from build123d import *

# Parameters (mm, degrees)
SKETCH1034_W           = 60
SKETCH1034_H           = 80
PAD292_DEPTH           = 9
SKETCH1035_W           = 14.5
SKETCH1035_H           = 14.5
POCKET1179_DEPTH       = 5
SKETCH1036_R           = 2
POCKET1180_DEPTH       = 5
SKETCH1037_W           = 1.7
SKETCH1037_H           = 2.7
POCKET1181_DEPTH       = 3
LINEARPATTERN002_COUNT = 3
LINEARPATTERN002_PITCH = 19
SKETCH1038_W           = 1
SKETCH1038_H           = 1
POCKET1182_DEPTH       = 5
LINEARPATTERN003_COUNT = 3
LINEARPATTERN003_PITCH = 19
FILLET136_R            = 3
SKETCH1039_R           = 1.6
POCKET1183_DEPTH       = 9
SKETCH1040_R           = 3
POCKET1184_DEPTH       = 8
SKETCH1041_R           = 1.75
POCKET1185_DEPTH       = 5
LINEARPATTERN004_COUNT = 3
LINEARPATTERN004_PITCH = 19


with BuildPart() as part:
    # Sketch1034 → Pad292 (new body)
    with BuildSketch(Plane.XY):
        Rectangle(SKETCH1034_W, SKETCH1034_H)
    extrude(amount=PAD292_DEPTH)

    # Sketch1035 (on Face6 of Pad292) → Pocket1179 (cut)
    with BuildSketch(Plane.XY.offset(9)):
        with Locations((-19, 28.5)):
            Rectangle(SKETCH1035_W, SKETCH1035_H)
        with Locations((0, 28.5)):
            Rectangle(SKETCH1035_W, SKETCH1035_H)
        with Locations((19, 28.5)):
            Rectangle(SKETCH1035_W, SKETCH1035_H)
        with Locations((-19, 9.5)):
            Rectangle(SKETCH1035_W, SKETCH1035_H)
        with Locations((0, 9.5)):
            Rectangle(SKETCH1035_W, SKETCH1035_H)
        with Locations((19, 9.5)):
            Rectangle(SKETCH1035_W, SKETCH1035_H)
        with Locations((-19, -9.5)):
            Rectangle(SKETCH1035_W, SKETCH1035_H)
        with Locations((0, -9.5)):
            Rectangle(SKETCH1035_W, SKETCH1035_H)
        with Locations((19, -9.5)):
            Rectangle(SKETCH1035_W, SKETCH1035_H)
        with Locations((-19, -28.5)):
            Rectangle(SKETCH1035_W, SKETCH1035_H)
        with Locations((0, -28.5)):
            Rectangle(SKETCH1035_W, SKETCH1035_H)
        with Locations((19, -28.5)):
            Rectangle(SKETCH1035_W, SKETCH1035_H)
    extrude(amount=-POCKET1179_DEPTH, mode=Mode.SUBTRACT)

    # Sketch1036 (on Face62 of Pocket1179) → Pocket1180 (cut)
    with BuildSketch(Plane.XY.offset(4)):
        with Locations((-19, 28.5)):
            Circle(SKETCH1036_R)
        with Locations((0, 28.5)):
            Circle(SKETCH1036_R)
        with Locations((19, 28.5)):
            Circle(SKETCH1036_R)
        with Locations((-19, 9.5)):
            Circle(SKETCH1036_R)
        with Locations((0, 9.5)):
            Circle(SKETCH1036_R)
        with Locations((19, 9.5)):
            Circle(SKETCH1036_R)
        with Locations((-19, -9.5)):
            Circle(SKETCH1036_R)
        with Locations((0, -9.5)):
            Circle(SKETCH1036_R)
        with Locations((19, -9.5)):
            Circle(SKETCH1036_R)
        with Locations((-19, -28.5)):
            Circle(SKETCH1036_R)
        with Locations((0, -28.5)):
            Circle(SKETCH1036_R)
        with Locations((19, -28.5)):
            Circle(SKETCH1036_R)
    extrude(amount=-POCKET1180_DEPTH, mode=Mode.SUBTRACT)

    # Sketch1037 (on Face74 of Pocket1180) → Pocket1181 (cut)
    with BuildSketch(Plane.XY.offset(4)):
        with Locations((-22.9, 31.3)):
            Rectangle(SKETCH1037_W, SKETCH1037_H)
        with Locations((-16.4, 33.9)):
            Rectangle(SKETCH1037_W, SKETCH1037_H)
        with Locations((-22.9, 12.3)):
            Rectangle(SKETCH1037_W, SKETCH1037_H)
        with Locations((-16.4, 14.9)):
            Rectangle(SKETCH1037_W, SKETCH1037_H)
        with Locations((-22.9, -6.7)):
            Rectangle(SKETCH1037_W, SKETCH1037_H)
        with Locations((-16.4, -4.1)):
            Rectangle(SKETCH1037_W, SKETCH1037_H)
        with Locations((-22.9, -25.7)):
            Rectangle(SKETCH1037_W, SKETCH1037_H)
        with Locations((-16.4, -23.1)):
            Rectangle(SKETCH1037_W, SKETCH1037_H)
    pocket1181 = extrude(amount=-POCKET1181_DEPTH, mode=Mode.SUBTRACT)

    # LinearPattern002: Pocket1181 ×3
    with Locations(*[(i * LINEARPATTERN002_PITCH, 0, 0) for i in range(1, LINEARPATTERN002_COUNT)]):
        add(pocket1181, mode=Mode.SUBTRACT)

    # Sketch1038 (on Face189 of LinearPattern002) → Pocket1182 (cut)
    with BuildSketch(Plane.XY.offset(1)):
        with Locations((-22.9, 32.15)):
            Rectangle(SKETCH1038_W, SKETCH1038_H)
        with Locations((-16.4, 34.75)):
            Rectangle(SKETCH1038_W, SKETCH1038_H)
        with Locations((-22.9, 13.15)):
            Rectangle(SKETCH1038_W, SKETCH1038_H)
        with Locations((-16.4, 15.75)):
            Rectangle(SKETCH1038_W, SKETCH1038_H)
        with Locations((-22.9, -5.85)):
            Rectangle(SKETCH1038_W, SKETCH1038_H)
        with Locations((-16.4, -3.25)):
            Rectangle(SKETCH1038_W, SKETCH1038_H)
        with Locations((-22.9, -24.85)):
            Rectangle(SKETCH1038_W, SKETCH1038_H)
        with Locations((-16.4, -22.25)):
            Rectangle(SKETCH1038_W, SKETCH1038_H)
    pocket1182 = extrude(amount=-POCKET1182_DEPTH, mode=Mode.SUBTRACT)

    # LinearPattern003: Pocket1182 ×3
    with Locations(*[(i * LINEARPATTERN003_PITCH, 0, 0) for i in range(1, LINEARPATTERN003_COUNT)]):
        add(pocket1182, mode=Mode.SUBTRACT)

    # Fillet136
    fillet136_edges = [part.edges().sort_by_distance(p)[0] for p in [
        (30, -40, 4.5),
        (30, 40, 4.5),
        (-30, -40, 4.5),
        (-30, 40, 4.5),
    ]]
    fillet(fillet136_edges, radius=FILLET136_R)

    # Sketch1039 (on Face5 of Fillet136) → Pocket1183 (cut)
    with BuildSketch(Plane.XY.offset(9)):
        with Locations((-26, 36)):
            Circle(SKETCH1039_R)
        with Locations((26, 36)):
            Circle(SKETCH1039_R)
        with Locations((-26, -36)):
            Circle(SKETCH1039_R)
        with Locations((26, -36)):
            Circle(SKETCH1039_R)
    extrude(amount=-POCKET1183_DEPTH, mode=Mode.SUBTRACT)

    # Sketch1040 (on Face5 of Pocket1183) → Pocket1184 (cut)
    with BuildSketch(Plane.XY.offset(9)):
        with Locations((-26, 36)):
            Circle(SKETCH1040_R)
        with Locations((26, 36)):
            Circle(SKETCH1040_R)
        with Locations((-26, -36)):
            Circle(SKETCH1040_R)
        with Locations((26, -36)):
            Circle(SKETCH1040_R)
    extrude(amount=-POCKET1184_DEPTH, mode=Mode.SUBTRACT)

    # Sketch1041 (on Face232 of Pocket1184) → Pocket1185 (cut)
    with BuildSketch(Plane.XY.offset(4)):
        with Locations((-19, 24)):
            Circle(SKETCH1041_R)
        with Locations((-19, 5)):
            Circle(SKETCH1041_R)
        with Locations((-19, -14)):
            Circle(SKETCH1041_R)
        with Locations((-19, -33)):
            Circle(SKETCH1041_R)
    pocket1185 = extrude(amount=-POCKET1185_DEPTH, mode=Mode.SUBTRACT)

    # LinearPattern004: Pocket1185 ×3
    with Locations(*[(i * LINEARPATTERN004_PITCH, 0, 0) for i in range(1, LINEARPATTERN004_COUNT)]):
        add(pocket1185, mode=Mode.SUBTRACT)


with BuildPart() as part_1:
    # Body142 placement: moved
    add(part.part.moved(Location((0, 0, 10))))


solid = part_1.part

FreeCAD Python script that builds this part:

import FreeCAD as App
import Part
import Sketcher

V = App.Vector


def edges_at(feature, points):
    """Names of the edges that pass closest to the given points."""
    edges = feature.Shape.Edges
    near = lambda p: min(range(len(edges)), key=lambda i: edges[i].distToShape(Part.Vertex(*p))[0])
    return sorted({f"Edge{near(p) + 1}" for p in points})

doc = App.newDocument("Part")
body = doc.addObject("PartDesign::Body", "Body")

# Sketch on XY plane
sketch1 = body.newObject("Sketcher::SketchObject", "Sketch")
sketch1.AttachmentSupport = (doc.getObject("XY_Plane"), [""])
sketch1.MapMode = "FlatFace"
sketch1.addGeometry(Part.LineSegment(V(-30, 40, 0), V(-30, -40, 0)), False)
sketch1.addGeometry(Part.LineSegment(V(-30, -40, 0), V(30, -40, 0)), False)
sketch1.addGeometry(Part.LineSegment(V(30, -40, 0), V(30, 40, 0)), False)
sketch1.addGeometry(Part.LineSegment(V(30, 40, 0), V(-30, 40, 0)), False)
sketch1.addConstraint(Sketcher.Constraint("Coincident", 0, 2, 1, 1))
sketch1.addConstraint(Sketcher.Constraint("Coincident", 1, 2, 2, 1))
sketch1.addConstraint(Sketcher.Constraint("Coincident", 2, 2, 3, 1))
sketch1.addConstraint(Sketcher.Constraint("Coincident", 3, 2, 0, 1))
sketch1.addConstraint(Sketcher.Constraint("Vertical", 0))
sketch1.addConstraint(Sketcher.Constraint("Horizontal", 1))
sketch1.addConstraint(Sketcher.Constraint("Vertical", 2))
sketch1.addConstraint(Sketcher.Constraint("Horizontal", 3))
sketch1.addConstraint(Sketcher.Constraint("Symmetric", 0, 2, 2, 2, -1, 1))
sketch1.addConstraint(Sketcher.Constraint("DistanceX", 1, 1, 1, 2, 60.0))
sketch1.addConstraint(Sketcher.Constraint("DistanceY", 0, 2, 0, 1, 80.0))
pad1 = body.newObject("PartDesign::Pad", "Pad")
pad1.Profile = sketch1
pad1.Length = 9

# Sketch on XY plane
sketch2 = body.newObject("Sketcher::SketchObject", "Sketch001")
sketch2.AttachmentSupport = (doc.getObject("XY_Plane"), [""])
sketch2.MapMode = "FlatFace"
sketch2.AttachmentOffset = App.Placement(V(0, 0, 9), App.Rotation())
sketch2.addGeometry(Part.LineSegment(V(-26, 36, 0), V(-26, 21, 0)), False)
sketch2.addGeometry(Part.LineSegment(V(-26, 21, 0), V(-12, 21, 0)), False)
sketch2.addGeometry(Part.LineSegment(V(-12, 21, 0), V(-12, 36, 0)), False)
sketch2.addGeometry(Part.LineSegment(V(-12, 36, 0), V(-26, 36, 0)), False)
sketch2.addGeometry(Part.LineSegment(V(-7, 36, 0), V(-7, 21, 0)), False)
sketch2.addGeometry(Part.LineSegment(V(-7, 21, 0), V(7, 21, 0)), False)
sketch2.addGeometry(Part.LineSegment(V(7, 21, 0), V(7, 36, 0)), False)
sketch2.addGeometry(Part.LineSegment(V(7, 36, 0), V(-7, 36, 0)), False)
sketch2.addGeometry(Part.LineSegment(V(12, 36, 0), V(12, 21, 0)), False)
sketch2.addGeometry(Part.LineSegment(V(12, 21, 0), V(26, 21, 0)), False)
sketch2.addGeometry(Part.LineSegment(V(26, 21, 0), V(26, 36, 0)), False)
sketch2.addGeometry(Part.LineSegment(V(26, 36, 0), V(12, 36, 0)), False)
sketch2.addGeometry(Part.LineSegment(V(-26, 17, 0), V(-26, 2, 0)), False)
sketch2.addGeometry(Part.LineSegment(V(-26, 2, 0), V(-12, 2, 0)), False)
sketch2.addGeometry(Part.LineSegment(V(-12, 2, 0), V(-12, 17, 0)), False)
sketch2.addGeometry(Part.LineSegment(V(-12, 17, 0), V(-26, 17, 0)), False)
sketch2.addGeometry(Part.LineSegment(V(-7, 17, 0), V(-7, 2, 0)), False)
sketch2.addGeometry(Part.LineSegment(V(-7, 2, 0), V(7, 2, 0)), False)
sketch2.addGeometry(Part.LineSegment(V(7, 2, 0), V(7, 17, 0)), False)
sketch2.addGeometry(Part.LineSegment(V(7, 17, 0), V(-7, 17, 0)), False)
sketch2.addGeometry(Part.LineSegment(V(12, 17, 0), V(12, 2, 0)), False)
sketch2.addGeometry(Part.LineSegment(V(12, 2, 0), V(26, 2, 0)), False)
sketch2.addGeometry(Part.LineSegment(V(26, 2, 0), V(26, 17, 0)), False)
sketch2.addGeometry(Part.LineSegment(V(26, 17, 0), V(12, 17, 0)), False)
sketch2.addGeometry(Part.LineSegment(V(-26, -2, 0), V(-26, -17, 0)), False)
sketch2.addGeometry(Part.LineSegment(V(-26, -17, 0), V(-12, -17, 0)), False)
sketch2.addGeometry(Part.LineSegment(V(-12, -17, 0), V(-12, -2, 0)), False)
sketch2.addGeometry(Part.LineSegment(V(-12, -2, 0), V(-26, -2, 0)), False)
sketch2.addGeometry(Part.LineSegment(V(-7, -2, 0), V(-7, -17, 0)), False)
sketch2.addGeometry(Part.LineSegment(V(-7, -17, 0), V(7, -17, 0)), False)
sketch2.addGeometry(Part.LineSegment(V(7, -17, 0), V(7, -2, 0)), False)
sketch2.addGeometry(Part.LineSegment(V(7, -2, 0), V(-7, -2, 0)), False)
sketch2.addGeometry(Part.LineSegment(V(12, -2, 0), V(12, -17, 0)), False)
sketch2.addGeometry(Part.LineSegment(V(12, -17, 0), V(26, -17, 0)), False)
sketch2.addGeometry(Part.LineSegment(V(26, -17, 0), V(26, -2, 0)), False)
sketch2.addGeometry(Part.LineSegment(V(26, -2, 0), V(12, -2, 0)), False)
sketch2.addGeometry(Part.LineSegment(V(-26, -21, 0), V(-26, -36, 0)), False)
sketch2.addGeometry(Part.LineSegment(V(-26, -36, 0), V(-12, -36, 0)), False)
sketch2.addGeometry(Part.LineSegment(V(-12, -36, 0), V(-12, -21, 0)), False)
sketch2.addGeometry(Part.LineSegment(V(-12, -21, 0), V(-26, -21, 0)), False)
sketch2.addGeometry(Part.LineSegment(V(-7, -21, 0), V(-7, -36, 0)), False)
sketch2.addGeometry(Part.LineSegment(V(-7, -36, 0), V(7, -36, 0)), False)
sketch2.addGeometry(Part.LineSegment(V(7, -36, 0), V(7, -21, 0)), False)
sketch2.addGeometry(Part.LineSegment(V(7, -21, 0), V(-7, -21, 0)), False)
sketch2.addGeometry(Part.LineSegment(V(12, -21, 0), V(12, -36, 0)), False)
sketch2.addGeometry(Part.LineSegment(V(12, -36, 0), V(26, -36, 0)), False)
sketch2.addGeometry(Part.LineSegment(V(26, -36, 0), V(26, -21, 0)), False)
sketch2.addGeometry(Part.LineSegment(V(26, -21, 0), V(12, -21, 0)), False)
sketch2.addConstraint(Sketcher.Constraint("Coincident", 0, 2, 1, 1))
sketch2.addConstraint(Sketcher.Constraint("Coincident", 1, 2, 2, 1))
sketch2.addConstraint(Sketcher.Constraint("Coincident", 2, 2, 3, 1))
sketch2.addConstraint(Sketcher.Constraint("Coincident", 3, 2, 0, 1))
sketch2.addConstraint(Sketcher.Constraint("Coincident", 4, 2, 5, 1))
sketch2.addConstraint(Sketcher.Constraint("Coincident", 5, 2, 6, 1))
sketch2.addConstraint(Sketcher.Constraint("Coincident", 6, 2, 7, 1))
sketch2.addConstraint(Sketcher.Constraint("Coincident", 7, 2, 4, 1))
sketch2.addConstraint(Sketcher.Constraint("Coincident", 8, 2, 9, 1))
sketch2.addConstraint(Sketcher.Constraint("Coincident", 9, 2, 10, 1))
sketch2.addConstraint(Sketcher.Constraint("Coincident", 10, 2, 11, 1))
sketch2.addConstraint(Sketcher.Constraint("Coincident", 11, 2, 8, 1))
sketch2.addConstraint(Sketcher.Constraint("Coincident", 12, 2, 13, 1))
sketch2.addConstraint(Sketcher.Constraint("Coincident", 13, 2, 14, 1))
sketch2.addConstraint(Sketcher.Constraint("Coincident", 14, 2, 15, 1))
sketch2.addConstraint(Sketcher.Constraint("Coincident", 15, 2, 12, 1))
sketch2.addConstraint(Sketcher.Constraint("Coincident", 16, 2, 17, 1))
sketch2.addConstraint(Sketcher.Constraint("Coincident", 17, 2, 18, 1))
sketch2.addConstraint(Sketcher.Constraint("Coincident", 18, 2, 19, 1))
sketch2.addConstraint(Sketcher.Constraint("Coincident", 19, 2, 16, 1))
sketch2.addConstraint(Sketcher.Constraint("Coincident", 20, 2, 21, 1))
sketch2.addConstraint(Sketcher.Constraint("Coincident", 21, 2, 22, 1))
sketch2.addConstraint(Sketcher.Constraint("Coincident", 22, 2, 23, 1))
sketch2.addConstraint(Sketcher.Constraint("Coincident", 23, 2, 20, 1))
sketch2.addConstraint(Sketcher.Constraint("Coincident", 24, 2, 25, 1))
sketch2.addConstraint(Sketcher.Constraint("Coincident", 25, 2, 26, 1))
sketch2.addConstraint(Sketcher.Constraint("Coincident", 26, 2, 27, 1))
sketch2.addConstraint(Sketcher.Constraint("Coincident", 27, 2, 24, 1))
sketch2.addConstraint(Sketcher.Constraint("Coincident", 28, 2, 29, 1))
sketch2.addConstraint(Sketcher.Constraint("Coincident", 29, 2, 30, 1))
sketch2.addConstraint(Sketcher.Constraint("Coincident", 30, 2, 31, 1))
sketch2.addConstraint(Sketcher.Constraint("Coincident", 31, 2, 28, 1))
sketch2.addConstraint(Sketcher.Constraint("Coincident", 32, 2, 33, 1))
sketch2.addConstraint(Sketcher.Constraint("Coincident", 33, 2, 34, 1))
sketch2.addConstraint(Sketcher.Constraint("Coincident", 34, 2, 35, 1))
sketch2.addConstraint(Sketcher.Constraint("Coincident", 35, 2, 32, 1))
sketch2.addConstraint(Sketcher.Constraint("Coincident", 36, 2, 37, 1))
sketch2.addConstraint(Sketcher.Constraint("Coincident", 37, 2, 38, 1))
sketch2.addConstraint(Sketcher.Constraint("Coincident", 38, 2, 39, 1))
sketch2.addConstraint(Sketcher.Constraint("Coincident", 39, 2, 36, 1))
sketch2.addConstraint(Sketcher.Constraint("Coincident", 40, 2, 41, 1))
sketch2.addConstraint(Sketcher.Constraint("Coincident", 41, 2, 42, 1))
sketch2.addConstraint(Sketcher.Constraint("Coincident", 42, 2, 43, 1))
sketch2.addConstraint(Sketcher.Constraint("Coincident", 43, 2, 40, 1))
sketch2.addConstraint(Sketcher.Constraint("Coincident", 44, 2, 45, 1))
sketch2.addConstraint(Sketcher.Constraint("Coincident", 45, 2, 46, 1))
sketch2.addConstraint(Sketcher.Constraint("Coincident", 46, 2, 47, 1))
sketch2.addConstraint(Sketcher.Constraint("Coincident", 47, 2, 44, 1))
sketch2.addConstraint(Sketcher.Constraint("Vertical", 0))
sketch2.addConstraint(Sketcher.Constraint("Horizontal", 1))
sketch2.addConstraint(Sketcher.Constraint("Vertical", 2))
sketch2.addConstraint(Sketcher.Constraint("Horizontal", 3))
sketch2.addConstraint(Sketcher.Constraint("Vertical", 4))
sketch2.addConstraint(Sketcher.Constraint("Horizontal", 5))
sketch2.addConstraint(Sketcher.Constraint("Vertical", 6))
sketch2.addConstraint(Sketcher.Constraint("Horizontal", 7))
sketch2.addConstraint(Sketcher.Constraint("Vertical", 8))
sketch2.addConstraint(Sketcher.Constraint("Horizontal", 9))
sketch2.addConstraint(Sketcher.Constraint("Vertical", 10))
sketch2.addConstraint(Sketcher.Constraint("Horizontal", 11))
sketch2.addConstraint(Sketcher.Constraint("Vertical", 12))
sketch2.addConstraint(Sketcher.Constraint("Horizontal", 13))
sketch2.addConstraint(Sketcher.Constraint("Vertical", 14))
sketch2.addConstraint(Sketcher.Constraint("Horizontal", 15))
sketch2.addConstraint(Sketcher.Constraint("Vertical", 16))
sketch2.addConstraint(Sketcher.Constraint("Horizontal", 17))
sketch2.addConstraint(Sketcher.Constraint("Vertical", 18))
sketch2.addConstraint(Sketcher.Constraint("Horizontal", 19))
sketch2.addConstraint(Sketcher.Constraint("Vertical", 20))
sketch2.addConstraint(Sketcher.Constraint("Horizontal", 21))
sketch2.addConstraint(Sketcher.Constraint("Vertical", 22))
sketch2.addConstraint(Sketcher.Constraint("Horizontal", 23))
sketch2.addConstraint(Sketcher.Constraint("Vertical", 24))
sketch2.addConstraint(Sketcher.Constraint("Horizontal", 25))
sketch2.addConstraint(Sketcher.Constraint("Vertical", 26))
sketch2.addConstraint(Sketcher.Constraint("Horizontal", 27))
sketch2.addConstraint(Sketcher.Constraint("Vertical", 28))
sketch2.addConstraint(Sketcher.Constraint("Horizontal", 29))
sketch2.addConstraint(Sketcher.Constraint("Vertical", 30))
sketch2.addConstraint(Sketcher.Constraint("Horizontal", 31))
sketch2.addConstraint(Sketcher.Constraint("Vertical", 32))
sketch2.addConstraint(Sketcher.Constraint("Horizontal", 33))
sketch2.addConstraint(Sketcher.Constraint("Vertical", 34))
sketch2.addConstraint(Sketcher.Constraint("Horizontal", 35))
sketch2.addConstraint(Sketcher.Constraint("Vertical", 36))
sketch2.addConstraint(Sketcher.Constraint("Horizontal", 37))
sketch2.addConstraint(Sketcher.Constraint("Vertical", 38))
sketch2.addConstraint(Sketcher.Constraint("Horizontal", 39))
sketch2.addConstraint(Sketcher.Constraint("Vertical", 40))
sketch2.addConstraint(Sketcher.Constraint("Horizontal", 41))
sketch2.addConstraint(Sketcher.Constraint("Vertical", 42))
sketch2.addConstraint(Sketcher.Constraint("Horizontal", 43))
sketch2.addConstraint(Sketcher.Constraint("Vertical", 44))
sketch2.addConstraint(Sketcher.Constraint("Horizontal", 45))
sketch2.addConstraint(Sketcher.Constraint("Vertical", 46))
sketch2.addConstraint(Sketcher.Constraint("Horizontal", 47))
sketch2.addConstraint(Sketcher.Constraint("Symmetric", 22, 2, 24, 2, -1, 1))
sketch2.addConstraint(Sketcher.Constraint("Symmetric", 20, 2, 26, 2, -1, 1))
sketch2.addConstraint(Sketcher.Constraint("Symmetric", 18, 2, 28, 2, -1, 1))
sketch2.addConstraint(Sketcher.Constraint("Symmetric", 16, 2, 30, 2, -1, 1))
sketch2.addConstraint(Sketcher.Constraint("Symmetric", 14, 2, 32, 2, -1, 1))
sketch2.addConstraint(Sketcher.Constraint("Symmetric", 12, 2, 34, 2, -1, 1))
sketch2.addConstraint(Sketcher.Constraint("Symmetric", 10, 2, 36, 2, -1, 1))
sketch2.addConstraint(Sketcher.Constraint("Symmetric", 8, 2, 38, 2, -1, 1))
sketch2.addConstraint(Sketcher.Constraint("Symmetric", 6, 2, 40, 2, -1, 1))
sketch2.addConstraint(Sketcher.Constraint("Symmetric", 4, 2, 42, 2, -1, 1))
sketch2.addConstraint(Sketcher.Constraint("Symmetric", 2, 2, 44, 2, -1, 1))
sketch2.addConstraint(Sketcher.Constraint("Symmetric", 0, 2, 46, 2, -1, 1))
sketch2.addConstraint(Sketcher.Constraint("Symmetric", 1, 2, 8, 2, -2))
sketch2.addConstraint(Sketcher.Constraint("Symmetric", 3, 2, 10, 2, -2))
sketch2.addConstraint(Sketcher.Constraint("Symmetric", 13, 2, 20, 2, -2))
sketch2.addConstraint(Sketcher.Constraint("Symmetric", 15, 2, 22, 2, -2))
sketch2.addConstraint(Sketcher.Constraint("Horizontal", 1, 2, 4, 2))
sketch2.addConstraint(Sketcher.Constraint("Horizontal", 3, 2, 6, 2))
sketch2.addConstraint(Sketcher.Constraint("Horizontal", 13, 2, 16, 2))
sketch2.addConstraint(Sketcher.Constraint("Horizontal", 15, 2, 18, 2))
sketch2.addConstraint(Sketcher.Constraint("Vertical", 3, 2, 12, 2))
sketch2.addConstraint(Sketcher.Constraint("Vertical", 2, 2, 13, 2))
sketch2.addConstraint(Sketcher.Constraint("Vertical", 7, 2, 16, 2))
sketch2.addConstraint(Sketcher.Constraint("Vertical", 6, 2, 17, 2))
sketch2.addConstraint(Sketcher.Constraint("Vertical", 19, 2, 28, 2))
sketch2.addConstraint(Sketcher.Constraint("Equal", 3, 5))
sketch2.addConstraint(Sketcher.Constraint("Equal", 47, 0))
sketch2.addConstraint(Sketcher.Constraint("Equal", 10, 12))
sketch2.addConstraint(Sketcher.Constraint("DistanceX", 1, 1, 1, 2, 14.5))
sketch2.addConstraint(Sketcher.Constraint("DistanceX", 0, 2, 4, 2, 19.0))
sketch2.addConstraint(Sketcher.Constraint("DistanceY", 12, 2, 0, 2, 19.0))
sketch2.addConstraint(Sketcher.Constraint("DistanceY", 24, 2, 12, 2, 19.0))
pocket1 = body.newObject("PartDesign::Pocket", "Pocket")
pocket1.Profile = sketch2
pocket1.Length = 5

# Sketch on XY plane
sketch3 = body.newObject("Sketcher::SketchObject", "Sketch002")
sketch3.AttachmentSupport = (doc.getObject("XY_Plane"), [""])
sketch3.MapMode = "FlatFace"
sketch3.AttachmentOffset = App.Placement(V(0, 0, 4), App.Rotation())
sketch3.addGeometry(Part.Circle(V(-19, 28.5, 0), V(0, 0, 1), 2), False)
sketch3.addGeometry(Part.Circle(V(0, 28.5, 0), V(0, 0, 1), 2), False)
sketch3.addGeometry(Part.Circle(V(19, 28.5, 0), V(0, 0, 1), 2), False)
sketch3.addGeometry(Part.Circle(V(-19, 9.5, 0), V(0, 0, 1), 2), False)
sketch3.addGeometry(Part.Circle(V(0, 9.5, 0), V(0, 0, 1), 2), False)
sketch3.addGeometry(Part.Circle(V(19, 9.5, 0), V(0, 0, 1), 2), False)
sketch3.addGeometry(Part.Circle(V(-19, -9.5, 0), V(0, 0, 1), 2), False)
sketch3.addGeometry(Part.Circle(V(0, -9.5, 0), V(0, 0, 1), 2), False)
sketch3.addGeometry(Part.Circle(V(19, -9.5, 0), V(0, 0, 1), 2), False)
sketch3.addGeometry(Part.Circle(V(-19, -28.5, 0), V(0, 0, 1), 2), False)
sketch3.addGeometry(Part.Circle(V(0, -28.5, 0), V(0, 0, 1), 2), False)
sketch3.addGeometry(Part.Circle(V(19, -28.5, 0), V(0, 0, 1), 2), False)
sketch3.addConstraint(Sketcher.Constraint("Equal", 0, 1))
sketch3.addConstraint(Sketcher.Constraint("Equal", 1, 2))
sketch3.addConstraint(Sketcher.Constraint("Equal", 2, 3))
sketch3.addConstraint(Sketcher.Constraint("Equal", 3, 4))
sketch3.addConstraint(Sketcher.Constraint("Equal", 4, 5))
sketch3.addConstraint(Sketcher.Constraint("Equal", 5, 6))
sketch3.addConstraint(Sketcher.Constraint("Equal", 6, 7))
sketch3.addConstraint(Sketcher.Constraint("Equal", 7, 8))
sketch3.addConstraint(Sketcher.Constraint("Equal", 8, 9))
sketch3.addConstraint(Sketcher.Constraint("Equal", 9, 10))
sketch3.addConstraint(Sketcher.Constraint("Equal", 10, 11))
sketch3.addConstraint(Sketcher.Constraint("Symmetric", 5, 3, 6, 3, -1, 1))
sketch3.addConstraint(Sketcher.Constraint("Symmetric", 4, 3, 7, 3, -1, 1))
sketch3.addConstraint(Sketcher.Constraint("Symmetric", 3, 3, 8, 3, -1, 1))
sketch3.addConstraint(Sketcher.Constraint("Symmetric", 2, 3, 9, 3, -1, 1))
sketch3.addConstraint(Sketcher.Constraint("Symmetric", 1, 3, 10, 3, -1, 1))
sketch3.addConstraint(Sketcher.Constraint("Symmetric", 0, 3, 11, 3, -1, 1))
sketch3.addConstraint(Sketcher.Constraint("Symmetric", 0, 3, 2, 3, -2))
sketch3.addConstraint(Sketcher.Constraint("Symmetric", 3, 3, 5, 3, -2))
sketch3.addConstraint(Sketcher.Constraint("PointOnObject", 1, 3, -2))
sketch3.addConstraint(Sketcher.Constraint("PointOnObject", 4, 3, -2))
sketch3.addConstraint(Sketcher.Constraint("Horizontal", 0, 3, 1, 3))
sketch3.addConstraint(Sketcher.Constraint("Horizontal", 3, 3, 4, 3))
sketch3.addConstraint(Sketcher.Constraint("Vertical", 0, 3, 3, 3))
sketch3.addConstraint(Sketcher.Constraint("Diameter", 0, 4.0))
sketch3.addConstraint(Sketcher.Constraint("DistanceX", 0, 3, -1, 1, 19.0))
sketch3.addConstraint(Sketcher.Constraint("DistanceY", 3, 3, 0, 3, 19.0))
sketch3.addConstraint(Sketcher.Constraint("DistanceY", 6, 3, 3, 3, 19.0))
pocket2 = body.newObject("PartDesign::Pocket", "Pocket001")
pocket2.Profile = sketch3
pocket2.Length = 5

# Sketch on XY plane
sketch4 = body.newObject("Sketcher::SketchObject", "Sketch003")
sketch4.AttachmentSupport = (doc.getObject("XY_Plane"), [""])
sketch4.MapMode = "FlatFace"
sketch4.AttachmentOffset = App.Placement(V(0, 0, 4), App.Rotation())
sketch4.addGeometry(Part.LineSegment(V(-23.8, 32.6, 0), V(-23.8, 29.9, 0)), False)
sketch4.addGeometry(Part.LineSegment(V(-23.8, 29.9, 0), V(-22.1, 29.9, 0)), False)
sketch4.addGeometry(Part.LineSegment(V(-22.1, 29.9, 0), V(-22.1, 32.6, 0)), False)
sketch4.addGeometry(Part.LineSegment(V(-22.1, 32.6, 0), V(-23.8, 32.6, 0)), False)
sketch4.addGeometry(Part.LineSegment(V(-17.2, 35.2, 0), V(-17.2, 32.5, 0)), False)
sketch4.addGeometry(Part.LineSegment(V(-17.2, 32.5, 0), V(-15.6, 32.5, 0)), False)
sketch4.addGeometry(Part.LineSegment(V(-15.6, 32.5, 0), V(-15.6, 35.2, 0)), False)
sketch4.addGeometry(Part.LineSegment(V(-15.6, 35.2, 0), V(-17.2, 35.2, 0)), False)
sketch4.addGeometry(Part.LineSegment(V(-23.8, 13.7, 0), V(-23.8, 10.9, 0)), False)
sketch4.addGeometry(Part.LineSegment(V(-23.8, 10.9, 0), V(-22.1, 10.9, 0)), False)
sketch4.addGeometry(Part.LineSegment(V(-22.1, 10.9, 0), V(-22.1, 13.7, 0)), False)
sketch4.addGeometry(Part.LineSegment(V(-22.1, 13.7, 0), V(-23.8, 13.7, 0)), False)
sketch4.addGeometry(Part.LineSegment(V(-17.2, 16.2, 0), V(-17.2, 13.6, 0)), False)
sketch4.addGeometry(Part.LineSegment(V(-17.2, 13.6, 0), V(-15.6, 13.6, 0)), False)
sketch4.addGeometry(Part.LineSegment(V(-15.6, 13.6, 0), V(-15.6, 16.2, 0)), False)
sketch4.addGeometry(Part.LineSegment(V(-15.6, 16.2, 0), V(-17.2, 16.2, 0)), False)
sketch4.addGeometry(Part.LineSegment(V(-23.8, -5.3, 0), V(-23.8, -8.1, 0)), False)
sketch4.addGeometry(Part.LineSegment(V(-23.8, -8.1, 0), V(-22.1, -8.1, 0)), False)
sketch4.addGeometry(Part.LineSegment(V(-22.1, -8.1, 0), V(-22.1, -5.3, 0)), False)
sketch4.addGeometry(Part.LineSegment(V(-22.1, -5.3, 0), V(-23.8, -5.3, 0)), False)
sketch4.addGeometry(Part.LineSegment(V(-17.2, -2.8, 0), V(-17.2, -5.5, 0)), False)
sketch4.addGeometry(Part.LineSegment(V(-17.2, -5.5, 0), V(-15.6, -5.5, 0)), False)
sketch4.addGeometry(Part.LineSegment(V(-15.6, -5.5, 0), V(-15.6, -2.8, 0)), False)
sketch4.addGeometry(Part.LineSegment(V(-15.6, -2.8, 0), V(-17.2, -2.8, 0)), False)
sketch4.addGeometry(Part.LineSegment(V(-23.8, -24.4, 0), V(-23.8, -27.1, 0)), False)
sketch4.addGeometry(Part.LineSegment(V(-23.8, -27.1, 0), V(-22.1, -27.1, 0)), False)
sketch4.addGeometry(Part.LineSegment(V(-22.1, -27.1, 0), V(-22.1, -24.4, 0)), False)
sketch4.addGeometry(Part.LineSegment(V(-22.1, -24.4, 0), V(-23.8, -24.4, 0)), False)
sketch4.addGeometry(Part.LineSegment(V(-17.2, -21.8, 0), V(-17.2, -24.4, 0)), False)
sketch4.addGeometry(Part.LineSegment(V(-17.2, -24.4, 0), V(-15.6, -24.4, 0)), False)
sketch4.addGeometry(Part.LineSegment(V(-15.6, -24.4, 0), V(-15.6, -21.8, 0)), False)
sketch4.addGeometry(Part.LineSegment(V(-15.6, -21.8, 0), V(-17.2, -21.8, 0)), False)
sketch4.addConstraint(Sketcher.Constraint("Coincident", 0, 2, 1, 1))
sketch4.addConstraint(Sketcher.Constraint("Coincident", 1, 2, 2, 1))
sketch4.addConstraint(Sketcher.Constraint("Coincident", 2, 2, 3, 1))
sketch4.addConstraint(Sketcher.Constraint("Coincident", 3, 2, 0, 1))
sketch4.addConstraint(Sketcher.Constraint("Coincident", 4, 2, 5, 1))
sketch4.addConstraint(Sketcher.Constraint("Coincident", 5, 2, 6, 1))
sketch4.addConstraint(Sketcher.Constraint("Coincident", 6, 2, 7, 1))
sketch4.addConstraint(Sketcher.Constraint("Coincident", 7, 2, 4, 1))
sketch4.addConstraint(Sketcher.Constraint("Coincident", 8, 2, 9, 1))
sketch4.addConstraint(Sketcher.Constraint("Coincident", 9, 2, 10, 1))
sketch4.addConstraint(Sketcher.Constraint("Coincident", 10, 2, 11, 1))
sketch4.addConstraint(Sketcher.Constraint("Coincident", 11, 2, 8, 1))
sketch4.addConstraint(Sketcher.Constraint("Coincident", 12, 2, 13, 1))
sketch4.addConstraint(Sketcher.Constraint("Coincident", 13, 2, 14, 1))
sketch4.addConstraint(Sketcher.Constraint("Coincident", 14, 2, 15, 1))
sketch4.addConstraint(Sketcher.Constraint("Coincident", 15, 2, 12, 1))
sketch4.addConstraint(Sketcher.Constraint("Coincident", 16, 2, 17, 1))
sketch4.addConstraint(Sketcher.Constraint("Coincident", 17, 2, 18, 1))
sketch4.addConstraint(Sketcher.Constraint("Coincident", 18, 2, 19, 1))
sketch4.addConstraint(Sketcher.Constraint("Coincident", 19, 2, 16, 1))
sketch4.addConstraint(Sketcher.Constraint("Coincident", 20, 2, 21, 1))
sketch4.addConstraint(Sketcher.Constraint("Coincident", 21, 2, 22, 1))
sketch4.addConstraint(Sketcher.Constraint("Coincident", 22, 2, 23, 1))
sketch4.addConstraint(Sketcher.Constraint("Coincident", 23, 2, 20, 1))
sketch4.addConstraint(Sketcher.Constraint("Coincident", 24, 2, 25, 1))
sketch4.addConstraint(Sketcher.Constraint("Coincident", 25, 2, 26, 1))
sketch4.addConstraint(Sketcher.Constraint("Coincident", 26, 2, 27, 1))
sketch4.addConstraint(Sketcher.Constraint("Coincident", 27, 2, 24, 1))
sketch4.addConstraint(Sketcher.Constraint("Coincident", 28, 2, 29, 1))
sketch4.addConstraint(Sketcher.Constraint("Coincident", 29, 2, 30, 1))
sketch4.addConstraint(Sketcher.Constraint("Coincident", 30, 2, 31, 1))
sketch4.addConstraint(Sketcher.Constraint("Coincident", 31, 2, 28, 1))
sketch4.addConstraint(Sketcher.Constraint("Vertical", 0))
sketch4.addConstraint(Sketcher.Constraint("Horizontal", 1))
sketch4.addConstraint(Sketcher.Constraint("Vertical", 2))
sketch4.addConstraint(Sketcher.Constraint("Horizontal", 3))
sketch4.addConstraint(Sketcher.Constraint("Vertical", 4))
sketch4.addConstraint(Sketcher.Constraint("Horizontal", 5))
sketch4.addConstraint(Sketcher.Constraint("Vertical", 6))
sketch4.addConstraint(Sketcher.Constraint("Horizontal", 7))
sketch4.addConstraint(Sketcher.Constraint("Vertical", 8))
sketch4.addConstraint(Sketcher.Constraint("Horizontal", 9))
sketch4.addConstraint(Sketcher.Constraint("Vertical", 10))
sketch4.addConstraint(Sketcher.Constraint("Horizontal", 11))
sketch4.addConstraint(Sketcher.Constraint("Vertical", 12))
sketch4.addConstraint(Sketcher.Constraint("Horizontal", 13))
sketch4.addConstraint(Sketcher.Constraint("Vertical", 14))
sketch4.addConstraint(Sketcher.Constraint("Horizontal", 15))
sketch4.addConstraint(Sketcher.Constraint("Vertical", 16))
sketch4.addConstraint(Sketcher.Constraint("Horizontal", 17))
sketch4.addConstraint(Sketcher.Constraint("Vertical", 18))
sketch4.addConstraint(Sketcher.Constraint("Horizontal", 19))
sketch4.addConstraint(Sketcher.Constraint("Vertical", 20))
sketch4.addConstraint(Sketcher.Constraint("Horizontal", 21))
sketch4.addConstraint(Sketcher.Constraint("Vertical", 22))
sketch4.addConstraint(Sketcher.Constraint("Horizontal", 23))
sketch4.addConstraint(Sketcher.Constraint("Vertical", 24))
sketch4.addConstraint(Sketcher.Constraint("Horizontal", 25))
sketch4.addConstraint(Sketcher.Constraint("Vertical", 26))
sketch4.addConstraint(Sketcher.Constraint("Horizontal", 27))
sketch4.addConstraint(Sketcher.Constraint("Vertical", 28))
sketch4.addConstraint(Sketcher.Constraint("Horizontal", 29))
sketch4.addConstraint(Sketcher.Constraint("Vertical", 30))
sketch4.addConstraint(Sketcher.Constraint("Horizontal", 31))
sketch4.addConstraint(Sketcher.Constraint("Vertical", 3, 2, 8, 2))
sketch4.addConstraint(Sketcher.Constraint("Vertical", 2, 2, 9, 2))
sketch4.addConstraint(Sketcher.Constraint("Vertical", 7, 2, 12, 2))
sketch4.addConstraint(Sketcher.Constraint("Vertical", 6, 2, 13, 2))
sketch4.addConstraint(Sketcher.Constraint("Vertical", 11, 2, 16, 2))
sketch4.addConstraint(Sketcher.Constraint("Vertical", 10, 2, 17, 2))
sketch4.addConstraint(Sketcher.Constraint("Vertical", 15, 2, 20, 2))
sketch4.addConstraint(Sketcher.Constraint("Vertical", 14, 2, 21, 2))
sketch4.addConstraint(Sketcher.Constraint("Vertical", 19, 2, 24, 2))
sketch4.addConstraint(Sketcher.Constraint("Vertical", 18, 2, 25, 2))
sketch4.addConstraint(Sketcher.Constraint("Vertical", 23, 2, 28, 2))
sketch4.addConstraint(Sketcher.Constraint("Vertical", 22, 2, 29, 2))
sketch4.addConstraint(Sketcher.Constraint("Equal", 3, 5))
sketch4.addConstraint(Sketcher.Constraint("Equal", 2, 4))
sketch4.addConstraint(Sketcher.Constraint("Equal", 6, 8))
sketch4.addConstraint(Sketcher.Constraint("Equal", 10, 12))
sketch4.addConstraint(Sketcher.Constraint("Equal", 14, 16))
sketch4.addConstraint(Sketcher.Constraint("Equal", 18, 20))
sketch4.addConstraint(Sketcher.Constraint("Equal", 22, 24))
sketch4.addConstraint(Sketcher.Constraint("Equal", 26, 28))
sketch4.addConstraint(Sketcher.Constraint("DistanceX", 1, 1, 1, 2, 1.7))
sketch4.addConstraint(Sketcher.Constraint("DistanceY", 0, 2, 0, 1, 2.7))
sketch4.addConstraint(Sketcher.Constraint("DistanceY", 8, 2, 0, 2, 19.0))
sketch4.addConstraint(Sketcher.Constraint("DistanceY", 16, 2, 8, 2, 19.0))
sketch4.addConstraint(Sketcher.Constraint("DistanceY", 24, 2, 16, 2, 19.0))
sketch4.addConstraint(Sketcher.Constraint("DistanceX", 2, 2, 4, 2, 4.8))
sketch4.addConstraint(Sketcher.Constraint("DistanceY", 4, 2, 2, 2, 0.1))
sketch4.addConstraint(Sketcher.Constraint("DistanceY", 12, 2, 10, 2, 0.1))
sketch4.addConstraint(Sketcher.Constraint("DistanceY", 20, 2, 18, 2, 0.1))
sketch4.addConstraint(Sketcher.Constraint("DistanceY", 28, 2, 26, 2, 0.1))
sketch4.addConstraint(Sketcher.Constraint("DistanceX", 0, 2, -1, 1, 23.75))
sketch4.addConstraint(Sketcher.Constraint("DistanceY", -1, 1, 0, 2, 29.95))
pocket3 = body.newObject("PartDesign::Pocket", "Pocket002")
pocket3.Profile = sketch4
pocket3.Length = 3
doc.recompute()

linearpattern = body.newObject("PartDesign::LinearPattern", "LinearPattern")
linearpattern.Originals = [pocket3]
linearpattern.Direction = (doc.getObject("X_Axis"), [""])
linearpattern.Mode = "offset"
linearpattern.Offset = 19
linearpattern.Occurrences = 3
body.Tip = linearpattern

# Sketch on XY plane
sketch5 = body.newObject("Sketcher::SketchObject", "Sketch004")
sketch5.AttachmentSupport = (doc.getObject("XY_Plane"), [""])
sketch5.MapMode = "FlatFace"
sketch5.AttachmentOffset = App.Placement(V(0, 0, 1), App.Rotation())
sketch5.addGeometry(Part.LineSegment(V(-23.4, 32.6, 0), V(-23.4, 31.6, 0)), False)
sketch5.addGeometry(Part.LineSegment(V(-23.4, 31.6, 0), V(-22.4, 31.6, 0)), False)
sketch5.addGeometry(Part.LineSegment(V(-22.4, 31.6, 0), V(-22.4, 32.6, 0)), False)
sketch5.addGeometry(Part.LineSegment(V(-22.4, 32.6, 0), V(-23.4, 32.6, 0)), False)
sketch5.addGeometry(Part.LineSegment(V(-16.9, 35.2, 0), V(-16.9, 34.2, 0)), False)
sketch5.addGeometry(Part.LineSegment(V(-16.9, 34.2, 0), V(-15.9, 34.2, 0)), False)
sketch5.addGeometry(Part.LineSegment(V(-15.9, 34.2, 0), V(-15.9, 35.2, 0)), False)
sketch5.addGeometry(Part.LineSegment(V(-15.9, 35.2, 0), V(-16.9, 35.2, 0)), False)
sketch5.addGeometry(Part.LineSegment(V(-23.4, 13.7, 0), V(-23.4, 12.7, 0)), False)
sketch5.addGeometry(Part.LineSegment(V(-23.4, 12.7, 0), V(-22.4, 12.7, 0)), False)
sketch5.addGeometry(Part.LineSegment(V(-22.4, 12.7, 0), V(-22.4, 13.7, 0)), False)
sketch5.addGeometry(Part.LineSegment(V(-22.4, 13.7, 0), V(-23.4, 13.7, 0)), False)
sketch5.addGeometry(Part.LineSegment(V(-16.9, 16.2, 0), V(-16.9, 15.2, 0)), False)
sketch5.addGeometry(Part.LineSegment(V(-16.9, 15.2, 0), V(-15.9, 15.2, 0)), False)
sketch5.addGeometry(Part.LineSegment(V(-15.9, 15.2, 0), V(-15.9, 16.2, 0)), False)
sketch5.addGeometry(Part.LineSegment(V(-15.9, 16.2, 0), V(-16.9, 16.2, 0)), False)
sketch5.addGeometry(Part.LineSegment(V(-23.4, -5.3, 0), V(-23.4, -6.3, 0)), False)
sketch5.addGeometry(Part.LineSegment(V(-23.4, -6.3, 0), V(-22.4, -6.3, 0)), False)
sketch5.addGeometry(Part.LineSegment(V(-22.4, -6.3, 0), V(-22.4, -5.3, 0)), False)
sketch5.addGeometry(Part.LineSegment(V(-22.4, -5.3, 0), V(-23.4, -5.3, 0)), False)
sketch5.addGeometry(Part.LineSegment(V(-16.9, -2.8, 0), V(-16.9, -3.8, 0)), False)
sketch5.addGeometry(Part.LineSegment(V(-16.9, -3.8, 0), V(-15.9, -3.8, 0)), False)
sketch5.addGeometry(Part.LineSegment(V(-15.9, -3.8, 0), V(-15.9, -2.8, 0)), False)
sketch5.addGeometry(Part.LineSegment(V(-15.9, -2.8, 0), V(-16.9, -2.8, 0)), False)
sketch5.addGeometry(Part.LineSegment(V(-23.4, -24.4, 0), V(-23.4, -25.4, 0)), False)
sketch5.addGeometry(Part.LineSegment(V(-23.4, -25.4, 0), V(-22.4, -25.4, 0)), False)
sketch5.addGeometry(Part.LineSegment(V(-22.4, -25.4, 0), V(-22.4, -24.4, 0)), False)
sketch5.addGeometry(Part.LineSegment(V(-22.4, -24.4, 0), V(-23.4, -24.4, 0)), False)
sketch5.addGeometry(Part.LineSegment(V(-16.9, -21.8, 0), V(-16.9, -22.8, 0)), False)
sketch5.addGeometry(Part.LineSegment(V(-16.9, -22.8, 0), V(-15.9, -22.8, 0)), False)
sketch5.addGeometry(Part.LineSegment(V(-15.9, -22.8, 0), V(-15.9, -21.8, 0)), False)
sketch5.addGeometry(Part.LineSegment(V(-15.9, -21.8, 0), V(-16.9, -21.8, 0)), False)
sketch5.addConstraint(Sketcher.Constraint("Coincident", 0, 2, 1, 1))
sketch5.addConstraint(Sketcher.Constraint("Coincident", 1, 2, 2, 1))
sketch5.addConstraint(Sketcher.Constraint("Coincident", 2, 2, 3, 1))
sketch5.addConstraint(Sketcher.Constraint("Coincident", 3, 2, 0, 1))
sketch5.addConstraint(Sketcher.Constraint("Coincident", 4, 2, 5, 1))
sketch5.addConstraint(Sketcher.Constraint("Coincident", 5, 2, 6, 1))
sketch5.addConstraint(Sketcher.Constraint("Coincident", 6, 2, 7, 1))
sketch5.addConstraint(Sketcher.Constraint("Coincident", 7, 2, 4, 1))
sketch5.addConstraint(Sketcher.Constraint("Coincident", 8, 2, 9, 1))
sketch5.addConstraint(Sketcher.Constraint("Coincident", 9, 2, 10, 1))
sketch5.addConstraint(Sketcher.Constraint("Coincident", 10, 2, 11, 1))
sketch5.addConstraint(Sketcher.Constraint("Coincident", 11, 2, 8, 1))
sketch5.addConstraint(Sketcher.Constraint("Coincident", 12, 2, 13, 1))
sketch5.addConstraint(Sketcher.Constraint("Coincident", 13, 2, 14, 1))
sketch5.addConstraint(Sketcher.Constraint("Coincident", 14, 2, 15, 1))
sketch5.addConstraint(Sketcher.Constraint("Coincident", 15, 2, 12, 1))
sketch5.addConstraint(Sketcher.Constraint("Coincident", 16, 2, 17, 1))
sketch5.addConstraint(Sketcher.Constraint("Coincident", 17, 2, 18, 1))
sketch5.addConstraint(Sketcher.Constraint("Coincident", 18, 2, 19, 1))
sketch5.addConstraint(Sketcher.Constraint("Coincident", 19, 2, 16, 1))
sketch5.addConstraint(Sketcher.Constraint("Coincident", 20, 2, 21, 1))
sketch5.addConstraint(Sketcher.Constraint("Coincident", 21, 2, 22, 1))
sketch5.addConstraint(Sketcher.Constraint("Coincident", 22, 2, 23, 1))
sketch5.addConstraint(Sketcher.Constraint("Coincident", 23, 2, 20, 1))
sketch5.addConstraint(Sketcher.Constraint("Coincident", 24, 2, 25, 1))
sketch5.addConstraint(Sketcher.Constraint("Coincident", 25, 2, 26, 1))
sketch5.addConstraint(Sketcher.Constraint("Coincident", 26, 2, 27, 1))
sketch5.addConstraint(Sketcher.Constraint("Coincident", 27, 2, 24, 1))
sketch5.addConstraint(Sketcher.Constraint("Coincident", 28, 2, 29, 1))
sketch5.addConstraint(Sketcher.Constraint("Coincident", 29, 2, 30, 1))
sketch5.addConstraint(Sketcher.Constraint("Coincident", 30, 2, 31, 1))
sketch5.addConstraint(Sketcher.Constraint("Coincident", 31, 2, 28, 1))
sketch5.addConstraint(Sketcher.Constraint("Vertical", 0))
sketch5.addConstraint(Sketcher.Constraint("Horizontal", 1))
sketch5.addConstraint(Sketcher.Constraint("Vertical", 2))
sketch5.addConstraint(Sketcher.Constraint("Horizontal", 3))
sketch5.addConstraint(Sketcher.Constraint("Vertical", 4))
sketch5.addConstraint(Sketcher.Constraint("Horizontal", 5))
sketch5.addConstraint(Sketcher.Constraint("Vertical", 6))
sketch5.addConstraint(Sketcher.Constraint("Horizontal", 7))
sketch5.addConstraint(Sketcher.Constraint("Vertical", 8))
sketch5.addConstraint(Sketcher.Constraint("Horizontal", 9))
sketch5.addConstraint(Sketcher.Constraint("Vertical", 10))
sketch5.addConstraint(Sketcher.Constraint("Horizontal", 11))
sketch5.addConstraint(Sketcher.Constraint("Vertical", 12))
sketch5.addConstraint(Sketcher.Constraint("Horizontal", 13))
sketch5.addConstraint(Sketcher.Constraint("Vertical", 14))
sketch5.addConstraint(Sketcher.Constraint("Horizontal", 15))
sketch5.addConstraint(Sketcher.Constraint("Vertical", 16))
sketch5.addConstraint(Sketcher.Constraint("Horizontal", 17))
sketch5.addConstraint(Sketcher.Constraint("Vertical", 18))
sketch5.addConstraint(Sketcher.Constraint("Horizontal", 19))
sketch5.addConstraint(Sketcher.Constraint("Vertical", 20))
sketch5.addConstraint(Sketcher.Constraint("Horizontal", 21))
sketch5.addConstraint(Sketcher.Constraint("Vertical", 22))
sketch5.addConstraint(Sketcher.Constraint("Horizontal", 23))
sketch5.addConstraint(Sketcher.Constraint("Vertical", 24))
sketch5.addConstraint(Sketcher.Constraint("Horizontal", 25))
sketch5.addConstraint(Sketcher.Constraint("Vertical", 26))
sketch5.addConstraint(Sketcher.Constraint("Horizontal", 27))
sketch5.addConstraint(Sketcher.Constraint("Vertical", 28))
sketch5.addConstraint(Sketcher.Constraint("Horizontal", 29))
sketch5.addConstraint(Sketcher.Constraint("Vertical", 30))
sketch5.addConstraint(Sketcher.Constraint("Horizontal", 31))
sketch5.addConstraint(Sketcher.Constraint("Vertical", 3, 2, 8, 2))
sketch5.addConstraint(Sketcher.Constraint("Vertical", 2, 2, 9, 2))
sketch5.addConstraint(Sketcher.Constraint("Vertical", 7, 2, 12, 2))
sketch5.addConstraint(Sketcher.Constraint("Vertical", 6, 2, 13, 2))
sketch5.addConstraint(Sketcher.Constraint("Vertical", 11, 2, 16, 2))
sketch5.addConstraint(Sketcher.Constraint("Vertical", 10, 2, 17, 2))
sketch5.addConstraint(Sketcher.Constraint("Vertical", 15, 2, 20, 2))
sketch5.addConstraint(Sketcher.Constraint("Vertical", 14, 2, 21, 2))
sketch5.addConstraint(Sketcher.Constraint("Vertical", 19, 2, 24, 2))
sketch5.addConstraint(Sketcher.Constraint("Vertical", 18, 2, 25, 2))
sketch5.addConstraint(Sketcher.Constraint("Vertical", 23, 2, 28, 2))
sketch5.addConstraint(Sketcher.Constraint("Vertical", 22, 2, 29, 2))
sketch5.addConstraint(Sketcher.Constraint("Equal", 3, 5))
sketch5.addConstraint(Sketcher.Constraint("Equal", 31, 0))
sketch5.addConstraint(Sketcher.Constraint("Equal", 2, 4))
sketch5.addConstraint(Sketcher.Constraint("Equal", 6, 8))
sketch5.addConstraint(Sketcher.Constraint("Equal", 10, 12))
sketch5.addConstraint(Sketcher.Constraint("Equal", 14, 16))
sketch5.addConstraint(Sketcher.Constraint("Equal", 18, 20))
sketch5.addConstraint(Sketcher.Constraint("Equal", 22, 24))
sketch5.addConstraint(Sketcher.Constraint("Equal", 26, 28))
sketch5.addConstraint(Sketcher.Constraint("DistanceX", 1, 1, 1, 2, 1.0))
sketch5.addConstraint(Sketcher.Constraint("DistanceY", 8, 2, 0, 2, 19.0))
sketch5.addConstraint(Sketcher.Constraint("DistanceY", 16, 2, 8, 2, 19.0))
sketch5.addConstraint(Sketcher.Constraint("DistanceY", 24, 2, 16, 2, 19.0))
sketch5.addConstraint(Sketcher.Constraint("DistanceX", 0, 2, -1, 1, 23.4))
sketch5.addConstraint(Sketcher.Constraint("DistanceX", 4, 2, -1, 1, 16.9))
sketch5.addConstraint(Sketcher.Constraint("DistanceY", 2, 2, 4, 2, 1.6))
sketch5.addConstraint(Sketcher.Constraint("DistanceY", 10, 2, 12, 2, 1.6))
sketch5.addConstraint(Sketcher.Constraint("DistanceY", 18, 2, 20, 2, 1.6))
sketch5.addConstraint(Sketcher.Constraint("DistanceY", 26, 2, 28, 2, 1.6))
sketch5.addConstraint(Sketcher.Constraint("DistanceY", -1, 1, 0, 2, 31.65))
pocket4 = body.newObject("PartDesign::Pocket", "Pocket003")
pocket4.Profile = sketch5
pocket4.Length = 5
doc.recompute()

linearpattern2 = body.newObject("PartDesign::LinearPattern", "LinearPattern001")
linearpattern2.Originals = [pocket4]
linearpattern2.Direction = (doc.getObject("X_Axis"), [""])
linearpattern2.Mode = "offset"
linearpattern2.Offset = 19
linearpattern2.Occurrences = 3
body.Tip = linearpattern2
doc.recompute()

fillet = body.newObject("PartDesign::Fillet", "Fillet")
fillet.Base = (linearpattern2, edges_at(linearpattern2, [
    (30, -40, 4.5),
    (30, 40, 4.5),
    (-30, -40, 4.5),
    (-30, 40, 4.5),
]))
fillet.Radius = 3

# Sketch on XY plane
sketch6 = body.newObject("Sketcher::SketchObject", "Sketch005")
sketch6.AttachmentSupport = (doc.getObject("XY_Plane"), [""])
sketch6.MapMode = "FlatFace"
sketch6.AttachmentOffset = App.Placement(V(0, 0, 9), App.Rotation())
sketch6.addGeometry(Part.Circle(V(-26, 36, 0), V(0, 0, 1), 1.6), False)
sketch6.addGeometry(Part.Circle(V(26, 36, 0), V(0, 0, 1), 1.6), False)
sketch6.addGeometry(Part.Circle(V(-26, -36, 0), V(0, 0, 1), 1.6), False)
sketch6.addGeometry(Part.Circle(V(26, -36, 0), V(0, 0, 1), 1.6), False)
sketch6.addConstraint(Sketcher.Constraint("Equal", 0, 1))
sketch6.addConstraint(Sketcher.Constraint("Equal", 1, 2))
sketch6.addConstraint(Sketcher.Constraint("Equal", 2, 3))
sketch6.addConstraint(Sketcher.Constraint("Symmetric", 1, 3, 2, 3, -1, 1))
sketch6.addConstraint(Sketcher.Constraint("Symmetric", 0, 3, 3, 3, -1, 1))
sketch6.addConstraint(Sketcher.Constraint("Symmetric", 0, 3, 1, 3, -2))
sketch6.addConstraint(Sketcher.Constraint("Diameter", 0, 3.2))
sketch6.addConstraint(Sketcher.Constraint("DistanceX", 0, 3, -1, 1, 26.0))
sketch6.addConstraint(Sketcher.Constraint("DistanceY", -1, 1, 0, 3, 36.0))
pocket5 = body.newObject("PartDesign::Pocket", "Pocket004")
pocket5.Profile = sketch6
pocket5.Length = 9

# Sketch on XY plane
sketch7 = body.newObject("Sketcher::SketchObject", "Sketch006")
sketch7.AttachmentSupport = (doc.getObject("XY_Plane"), [""])
sketch7.MapMode = "FlatFace"
sketch7.AttachmentOffset = App.Placement(V(0, 0, 9), App.Rotation())
sketch7.addGeometry(Part.Circle(V(-26, 36, 0), V(0, 0, 1), 3), False)
sketch7.addGeometry(Part.Circle(V(26, 36, 0), V(0, 0, 1), 3), False)
sketch7.addGeometry(Part.Circle(V(-26, -36, 0), V(0, 0, 1), 3), False)
sketch7.addGeometry(Part.Circle(V(26, -36, 0), V(0, 0, 1), 3), False)
sketch7.addConstraint(Sketcher.Constraint("Equal", 0, 1))
sketch7.addConstraint(Sketcher.Constraint("Equal", 1, 2))
sketch7.addConstraint(Sketcher.Constraint("Equal", 2, 3))
sketch7.addConstraint(Sketcher.Constraint("Symmetric", 1, 3, 2, 3, -1, 1))
sketch7.addConstraint(Sketcher.Constraint("Symmetric", 0, 3, 3, 3, -1, 1))
sketch7.addConstraint(Sketcher.Constraint("Symmetric", 0, 3, 1, 3, -2))
sketch7.addConstraint(Sketcher.Constraint("Diameter", 0, 6.0))
sketch7.addConstraint(Sketcher.Constraint("DistanceX", 0, 3, -1, 1, 26.0))
sketch7.addConstraint(Sketcher.Constraint("DistanceY", -1, 1, 0, 3, 36.0))
pocket6 = body.newObject("PartDesign::Pocket", "Pocket005")
pocket6.Profile = sketch7
pocket6.Length = 8

# Sketch on XY plane
sketch8 = body.newObject("Sketcher::SketchObject", "Sketch007")
sketch8.AttachmentSupport = (doc.getObject("XY_Plane"), [""])
sketch8.MapMode = "FlatFace"
sketch8.AttachmentOffset = App.Placement(V(0, 0, 4), App.Rotation())
sketch8.addGeometry(Part.Circle(V(-19, 24, 0), V(0, 0, 1), 1.8), False)
sketch8.addGeometry(Part.Circle(V(-19, 5, 0), V(0, 0, 1), 1.8), False)
sketch8.addGeometry(Part.Circle(V(-19, -14, 0), V(0, 0, 1), 1.8), False)
sketch8.addGeometry(Part.Circle(V(-19, -33, 0), V(0, 0, 1), 1.8), False)
sketch8.addConstraint(Sketcher.Constraint("Equal", 0, 1))
sketch8.addConstraint(Sketcher.Constraint("Equal", 1, 2))
sketch8.addConstraint(Sketcher.Constraint("Equal", 2, 3))
sketch8.addConstraint(Sketcher.Constraint("Vertical", 0, 3, 1, 3))
sketch8.addConstraint(Sketcher.Constraint("Vertical", 1, 3, 2, 3))
sketch8.addConstraint(Sketcher.Constraint("Vertical", 2, 3, 3, 3))
sketch8.addConstraint(Sketcher.Constraint("Diameter", 0, 3.5))
sketch8.addConstraint(Sketcher.Constraint("DistanceX", 0, 3, -1, 1, 19.0))
sketch8.addConstraint(Sketcher.Constraint("DistanceY", -1, 1, 0, 3, 24.0))
sketch8.addConstraint(Sketcher.Constraint("DistanceY", -1, 1, 1, 3, 5.0))
sketch8.addConstraint(Sketcher.Constraint("DistanceY", 2, 3, -1, 1, 14.0))
sketch8.addConstraint(Sketcher.Constraint("DistanceY", 3, 3, -1, 1, 33.0))
pocket7 = body.newObject("PartDesign::Pocket", "Pocket006")
pocket7.Profile = sketch8
pocket7.Length = 5
doc.recompute()

linearpattern3 = body.newObject("PartDesign::LinearPattern", "LinearPattern002")
linearpattern3.Originals = [pocket7]
linearpattern3.Direction = (doc.getObject("X_Axis"), [""])
linearpattern3.Mode = "offset"
linearpattern3.Offset = 19
linearpattern3.Occurrences = 3
body.Tip = linearpattern3
body2 = doc.addObject("PartDesign::Body", "Body001")
doc.recompute()

body.Placement = App.Placement(V(0, 0, 10), App.Rotation(V(0, 0, 1), 0))
boolean = body2.newObject("PartDesign::Boolean", "Boolean")
boolean.Type = "Fuse"
boolean.addObjects([body])

doc.recompute()
